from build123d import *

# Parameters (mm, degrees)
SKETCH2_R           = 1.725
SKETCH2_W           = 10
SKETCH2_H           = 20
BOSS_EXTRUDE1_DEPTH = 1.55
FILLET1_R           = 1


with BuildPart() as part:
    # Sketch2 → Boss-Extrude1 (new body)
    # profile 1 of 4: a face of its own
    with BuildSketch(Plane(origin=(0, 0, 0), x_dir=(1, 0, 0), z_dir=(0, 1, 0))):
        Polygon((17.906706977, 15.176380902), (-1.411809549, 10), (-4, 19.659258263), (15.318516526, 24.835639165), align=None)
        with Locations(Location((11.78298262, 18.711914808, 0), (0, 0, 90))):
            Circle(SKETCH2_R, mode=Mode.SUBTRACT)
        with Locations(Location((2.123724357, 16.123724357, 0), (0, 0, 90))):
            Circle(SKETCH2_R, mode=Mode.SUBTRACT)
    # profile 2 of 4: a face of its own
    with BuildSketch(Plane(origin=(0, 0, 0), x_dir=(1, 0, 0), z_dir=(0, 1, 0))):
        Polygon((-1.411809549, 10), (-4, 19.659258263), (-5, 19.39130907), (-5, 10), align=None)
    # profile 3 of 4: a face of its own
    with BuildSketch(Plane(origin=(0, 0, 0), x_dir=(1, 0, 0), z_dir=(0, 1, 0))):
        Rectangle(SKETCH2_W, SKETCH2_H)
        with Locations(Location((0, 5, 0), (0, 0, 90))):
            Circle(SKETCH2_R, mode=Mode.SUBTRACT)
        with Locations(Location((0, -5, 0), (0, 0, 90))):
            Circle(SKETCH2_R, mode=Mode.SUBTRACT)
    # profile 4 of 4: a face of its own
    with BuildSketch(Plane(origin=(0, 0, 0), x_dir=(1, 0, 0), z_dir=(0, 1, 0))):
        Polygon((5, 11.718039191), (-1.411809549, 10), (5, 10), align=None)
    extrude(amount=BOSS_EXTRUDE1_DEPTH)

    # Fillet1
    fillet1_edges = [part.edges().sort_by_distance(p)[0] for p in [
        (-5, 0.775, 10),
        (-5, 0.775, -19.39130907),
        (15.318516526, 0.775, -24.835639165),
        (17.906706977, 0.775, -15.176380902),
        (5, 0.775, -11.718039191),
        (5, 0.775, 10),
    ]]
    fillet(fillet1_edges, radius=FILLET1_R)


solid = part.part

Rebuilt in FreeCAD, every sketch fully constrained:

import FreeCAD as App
import Part
import Sketcher
Q = App.Units.Quantity


def edges_at(feature, points):
    """Names of the edges that pass closest to the given points."""
    edges = feature.Shape.Edges
    near = lambda p: min(range(len(edges)), key=lambda i: edges[i].distToShape(Part.Vertex(*p))[0])
    return sorted({f"Edge{near(p) + 1}" for p in points})


def add_polygon(sketch, points):
    """Adds a closed chain of lines whose ends are joined by coincident constraints."""
    first, n = sketch.GeometryCount, len(points)
    for a, b in zip(points, points[1:] + points[:1]):
        sketch.addGeometry(Part.LineSegment(App.Vector(*a, 0), App.Vector(*b, 0)), False)
    for i in range(n):
        sketch.addConstraint(Sketcher.Constraint("Coincident", first + i, 2, first + (i + 1) % n, 1))

doc = App.newDocument("Part")
body = doc.addObject("PartDesign::Body", "Body")

# Sketch on XZ plane
sketch1 = body.newObject("Sketcher::SketchObject", "Sketch")
sketch1.AttachmentSupport = (doc.getObject("XZ_Plane"), [""])
sketch1.MapMode = "FlatFace"
add_polygon(sketch1, [(5, -11.7), (17.9, -15.2), (15.3, -24.8), (-4, -19.7), (-5, -19.4), (-5, 10), (5, 10)])  # lines 0-6
sketch1.addGeometry(Part.Circle(App.Vector(2.1, -16.1, 0), App.Vector(0, 0, 1), 1.7), False)  # 7
sketch1.addGeometry(Part.Circle(App.Vector(11.8, -18.7, 0), App.Vector(0, 0, 1), 1.7), False)  # 8
sketch1.addGeometry(Part.Circle(App.Vector(0, 5, 0), App.Vector(0, 0, 1), 1.7), False)  # 9
sketch1.addGeometry(Part.Circle(App.Vector(0, -5, 0), App.Vector(0, 0, 1), 1.7), False)  # 10
sketch1.addConstraint(Sketcher.Constraint("Vertical", 4))
sketch1.addConstraint(Sketcher.Constraint("Horizontal", 5))
sketch1.addConstraint(Sketcher.Constraint("Vertical", 6))
sketch1.addConstraint(Sketcher.Constraint("Equal", 7, 8))
sketch1.addConstraint(Sketcher.Constraint("Equal", 8, 9))
sketch1.addConstraint(Sketcher.Constraint("Equal", 9, 10))
sketch1.addConstraint(Sketcher.Constraint("Symmetric", 9, 3, 10, 3, -1, 1))
sketch1.addConstraint(Sketcher.Constraint("PointOnObject", 9, 3, -2))
sketch1.addConstraint(Sketcher.Constraint("Perpendicular", 0, 1))
sketch1.addConstraint(Sketcher.Constraint("Perpendicular", 1, 2))
sketch1.addConstraint(Sketcher.Constraint("Parallel", 2, 3))
sketch1.addConstraint(Sketcher.Constraint("Diameter", 7, 3.45))
sketch1.addConstraint(Sketcher.Constraint("DistanceX", 5, 1, 5, 2, 10.0))
sketch1.addConstraint(Sketcher.Constraint("Angle", 0, Q("-15 deg")))
sketch1.addConstraint(Sketcher.Constraint("Distance", 1, 10.0))
sketch1.addConstraint(Sketcher.Constraint("Distance", 2, 20.0))
sketch1.addConstraint(Sketcher.Constraint("DistanceY", -1, 1, 9, 3, 5.0))
sketch1.addConstraint(Sketcher.Constraint("DistanceX", 2, 2, -1, 1, 4.0))
sketch1.addConstraint(Sketcher.Constraint("DistanceX", 3, 2, -1, 1, 5.0))
sketch1.addConstraint(Sketcher.Constraint("DistanceY", -1, 1, 4, 2, 10.0))
sketch1.addConstraint(Sketcher.Constraint("DistanceY", 4, 1, 4, 2, 29.391309))
sketch1.addConstraint(Sketcher.Constraint("DistanceX", 7, 3, 8, 3, 9.659258))
sketch1.addConstraint(Sketcher.Constraint("DistanceY", 8, 3, 7, 3, 2.58819))
sketch1.addConstraint(Sketcher.Constraint("DistanceX", -1, 1, 7, 3, 2.123724))
sketch1.addConstraint(Sketcher.Constraint("DistanceY", 7, 3, -1, 1, 16.123724))
pad1 = body.newObject("PartDesign::Pad", "Pad")
pad1.Profile = sketch1
pad1.Length = 1.55
pad1.Reversed = True
doc.recompute()

fillet = body.newObject("PartDesign::Fillet", "Fillet")
fillet.Base = (pad1, edges_at(pad1, [
    (-5, 0.775, 10),
    (-5, 0.775, -19.391),
    (15.319, 0.775, -24.836),
    (17.907, 0.775, -15.176),
    (5, 0.775, -11.718),
    (5, 0.775, 10),
]))
fillet.Radius = 1

doc.recompute()
